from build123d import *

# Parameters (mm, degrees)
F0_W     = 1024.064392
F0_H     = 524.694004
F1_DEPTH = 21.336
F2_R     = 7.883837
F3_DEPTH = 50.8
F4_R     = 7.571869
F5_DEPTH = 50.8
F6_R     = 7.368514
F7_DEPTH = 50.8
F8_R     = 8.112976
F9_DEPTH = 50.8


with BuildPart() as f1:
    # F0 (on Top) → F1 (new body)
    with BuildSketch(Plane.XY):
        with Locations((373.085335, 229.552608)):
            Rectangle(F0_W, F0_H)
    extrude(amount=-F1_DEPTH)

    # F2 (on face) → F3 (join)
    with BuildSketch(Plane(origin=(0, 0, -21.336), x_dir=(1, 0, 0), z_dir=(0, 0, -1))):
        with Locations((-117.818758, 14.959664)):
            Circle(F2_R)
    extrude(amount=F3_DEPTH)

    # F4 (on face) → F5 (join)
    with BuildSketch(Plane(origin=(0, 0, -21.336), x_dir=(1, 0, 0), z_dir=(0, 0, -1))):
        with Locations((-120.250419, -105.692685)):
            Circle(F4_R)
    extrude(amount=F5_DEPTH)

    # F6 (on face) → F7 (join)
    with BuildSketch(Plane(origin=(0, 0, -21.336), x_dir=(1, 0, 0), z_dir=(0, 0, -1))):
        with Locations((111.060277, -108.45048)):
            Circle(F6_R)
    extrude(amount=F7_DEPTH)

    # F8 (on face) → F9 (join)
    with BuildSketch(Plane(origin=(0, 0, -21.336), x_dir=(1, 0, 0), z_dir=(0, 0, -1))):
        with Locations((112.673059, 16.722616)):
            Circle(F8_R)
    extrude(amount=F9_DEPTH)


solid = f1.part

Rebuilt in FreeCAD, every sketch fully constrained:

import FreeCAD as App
import Part
import Sketcher

V = App.Vector
Q = App.Units.Quantity

doc = App.newDocument("Part")
body = doc.addObject("PartDesign::Body", "Body")

# Sketch on XY plane
sketch1 = body.newObject("Sketcher::SketchObject", "Sketch")
sketch1.AttachmentSupport = (doc.getObject("XY_Plane"), [""])
sketch1.MapMode = "FlatFace"
sketch1.addGeometry([
    Part.LineSegment(V(-139, 492, 0), V(-139, -33, 0)),
    Part.LineSegment(V(-139, -33, 0), V(885, -33, 0)),
    Part.LineSegment(V(885, -33, 0), V(885, 492, 0)),
    Part.LineSegment(V(885, 492, 0), V(-139, 492, 0)),
], False)
sketch1.addConstraint([
    Sketcher.Constraint("Coincident", 0, 2, 1, 1),
    Sketcher.Constraint("Coincident", 1, 2, 2, 1),
    Sketcher.Constraint("Coincident", 2, 2, 3, 1),
    Sketcher.Constraint("Coincident", 3, 2, 0, 1),
    Sketcher.Constraint("Vertical", 0),
    Sketcher.Constraint("Horizontal", 1),
    Sketcher.Constraint("Vertical", 2),
    Sketcher.Constraint("Horizontal", 3),
    Sketcher.Constraint("DistanceX", 1, 1, 1, 2, 1024.064392),
    Sketcher.Constraint("DistanceY", 0, 2, 0, 1, 524.694004),
    Sketcher.Constraint("DistanceX", 0, 2, -1, 1, 138.946861),
    Sketcher.Constraint("DistanceY", -1, 1, 2, 2, 491.89961),
])
pad1 = body.newObject("PartDesign::Pad", "Pad")
pad1.Profile = sketch1
pad1.Length = Q("0.84 in")
pad1.Reversed = True

# Sketch on XY plane
sketch2 = body.newObject("Sketcher::SketchObject", "Sketch001")
sketch2.AttachmentSupport = (doc.getObject("XY_Plane"), [""])
sketch2.MapMode = "FlatFace"
sketch2.AttachmentOffset = App.Placement(V(0, 0, -0.84 * 25.4), App.Rotation())
sketch2.addGeometry(Part.Circle(V(-118, -15, 0), V(0, 0, 1), 8), False)
sketch2.addConstraint([
    Sketcher.Constraint("Diameter", 0, 15.767674),
    Sketcher.Constraint("DistanceX", 0, 3, -1, 1, 117.818758),
    Sketcher.Constraint("DistanceY", 0, 3, -1, 1, 14.959664),
])
pad2 = body.newObject("PartDesign::Pad", "Pad001")
pad2.Profile = sketch2
pad2.Length = Q("2 in")
pad2.Reversed = True

# Sketch on XY plane
sketch3 = body.newObject("Sketcher::SketchObject", "Sketch002")
sketch3.AttachmentSupport = (doc.getObject("XY_Plane"), [""])
sketch3.MapMode = "FlatFace"
sketch3.AttachmentOffset = App.Placement(V(0, 0, -0.84 * 25.4), App.Rotation())
sketch3.addGeometry(Part.Circle(V(-120, 106, 0), V(0, 0, 1), 8), False)
sketch3.addConstraint([
    Sketcher.Constraint("Diameter", 0, 15.143738),
    Sketcher.Constraint("DistanceX", 0, 3, -1, 1, 120.250419),
    Sketcher.Constraint("DistanceY", -1, 1, 0, 3, 105.692685),
])
pad3 = body.newObject("PartDesign::Pad", "Pad002")
pad3.Profile = sketch3
pad3.Length = Q("2 in")
pad3.Reversed = True

# Sketch on XY plane
sketch4 = body.newObject("Sketcher::SketchObject", "Sketch003")
sketch4.AttachmentSupport = (doc.getObject("XY_Plane"), [""])
sketch4.MapMode = "FlatFace"
sketch4.AttachmentOffset = App.Placement(V(0, 0, -0.84 * 25.4), App.Rotation())
sketch4.addGeometry(Part.Circle(V(111, 108, 0), V(0, 0, 1), 7), False)
sketch4.addConstraint([
    Sketcher.Constraint("Diameter", 0, 14.737028),
    Sketcher.Constraint("DistanceY", -1, 1, 0, 3, 108.45048),
    Sketcher.Constraint("DistanceX", -1, 1, 0, 3, 111.060277),
])
pad4 = body.newObject("PartDesign::Pad", "Pad003")
pad4.Profile = sketch4
pad4.Length = Q("2 in")
pad4.Reversed = True

# Sketch on XY plane
sketch5 = body.newObject("Sketcher::SketchObject", "Sketch004")
sketch5.AttachmentSupport = (doc.getObject("XY_Plane"), [""])
sketch5.MapMode = "FlatFace"
sketch5.AttachmentOffset = App.Placement(V(0, 0, -0.84 * 25.4), App.Rotation())
sketch5.addGeometry(Part.Circle(V(113, -17, 0), V(0, 0, 1), 8), False)
sketch5.addConstraint([
    Sketcher.Constraint("Diameter", 0, 16.225952),
    Sketcher.Constraint("DistanceX", -1, 1, 0, 3, 112.673059),
    Sketcher.Constraint("DistanceY", 0, 3, -1, 1, 16.722616),
])
pad5 = body.newObject("PartDesign::Pad", "Pad004")
pad5.Profile = sketch5
pad5.Length = Q("2 in")
pad5.Reversed = True

doc.recompute()
